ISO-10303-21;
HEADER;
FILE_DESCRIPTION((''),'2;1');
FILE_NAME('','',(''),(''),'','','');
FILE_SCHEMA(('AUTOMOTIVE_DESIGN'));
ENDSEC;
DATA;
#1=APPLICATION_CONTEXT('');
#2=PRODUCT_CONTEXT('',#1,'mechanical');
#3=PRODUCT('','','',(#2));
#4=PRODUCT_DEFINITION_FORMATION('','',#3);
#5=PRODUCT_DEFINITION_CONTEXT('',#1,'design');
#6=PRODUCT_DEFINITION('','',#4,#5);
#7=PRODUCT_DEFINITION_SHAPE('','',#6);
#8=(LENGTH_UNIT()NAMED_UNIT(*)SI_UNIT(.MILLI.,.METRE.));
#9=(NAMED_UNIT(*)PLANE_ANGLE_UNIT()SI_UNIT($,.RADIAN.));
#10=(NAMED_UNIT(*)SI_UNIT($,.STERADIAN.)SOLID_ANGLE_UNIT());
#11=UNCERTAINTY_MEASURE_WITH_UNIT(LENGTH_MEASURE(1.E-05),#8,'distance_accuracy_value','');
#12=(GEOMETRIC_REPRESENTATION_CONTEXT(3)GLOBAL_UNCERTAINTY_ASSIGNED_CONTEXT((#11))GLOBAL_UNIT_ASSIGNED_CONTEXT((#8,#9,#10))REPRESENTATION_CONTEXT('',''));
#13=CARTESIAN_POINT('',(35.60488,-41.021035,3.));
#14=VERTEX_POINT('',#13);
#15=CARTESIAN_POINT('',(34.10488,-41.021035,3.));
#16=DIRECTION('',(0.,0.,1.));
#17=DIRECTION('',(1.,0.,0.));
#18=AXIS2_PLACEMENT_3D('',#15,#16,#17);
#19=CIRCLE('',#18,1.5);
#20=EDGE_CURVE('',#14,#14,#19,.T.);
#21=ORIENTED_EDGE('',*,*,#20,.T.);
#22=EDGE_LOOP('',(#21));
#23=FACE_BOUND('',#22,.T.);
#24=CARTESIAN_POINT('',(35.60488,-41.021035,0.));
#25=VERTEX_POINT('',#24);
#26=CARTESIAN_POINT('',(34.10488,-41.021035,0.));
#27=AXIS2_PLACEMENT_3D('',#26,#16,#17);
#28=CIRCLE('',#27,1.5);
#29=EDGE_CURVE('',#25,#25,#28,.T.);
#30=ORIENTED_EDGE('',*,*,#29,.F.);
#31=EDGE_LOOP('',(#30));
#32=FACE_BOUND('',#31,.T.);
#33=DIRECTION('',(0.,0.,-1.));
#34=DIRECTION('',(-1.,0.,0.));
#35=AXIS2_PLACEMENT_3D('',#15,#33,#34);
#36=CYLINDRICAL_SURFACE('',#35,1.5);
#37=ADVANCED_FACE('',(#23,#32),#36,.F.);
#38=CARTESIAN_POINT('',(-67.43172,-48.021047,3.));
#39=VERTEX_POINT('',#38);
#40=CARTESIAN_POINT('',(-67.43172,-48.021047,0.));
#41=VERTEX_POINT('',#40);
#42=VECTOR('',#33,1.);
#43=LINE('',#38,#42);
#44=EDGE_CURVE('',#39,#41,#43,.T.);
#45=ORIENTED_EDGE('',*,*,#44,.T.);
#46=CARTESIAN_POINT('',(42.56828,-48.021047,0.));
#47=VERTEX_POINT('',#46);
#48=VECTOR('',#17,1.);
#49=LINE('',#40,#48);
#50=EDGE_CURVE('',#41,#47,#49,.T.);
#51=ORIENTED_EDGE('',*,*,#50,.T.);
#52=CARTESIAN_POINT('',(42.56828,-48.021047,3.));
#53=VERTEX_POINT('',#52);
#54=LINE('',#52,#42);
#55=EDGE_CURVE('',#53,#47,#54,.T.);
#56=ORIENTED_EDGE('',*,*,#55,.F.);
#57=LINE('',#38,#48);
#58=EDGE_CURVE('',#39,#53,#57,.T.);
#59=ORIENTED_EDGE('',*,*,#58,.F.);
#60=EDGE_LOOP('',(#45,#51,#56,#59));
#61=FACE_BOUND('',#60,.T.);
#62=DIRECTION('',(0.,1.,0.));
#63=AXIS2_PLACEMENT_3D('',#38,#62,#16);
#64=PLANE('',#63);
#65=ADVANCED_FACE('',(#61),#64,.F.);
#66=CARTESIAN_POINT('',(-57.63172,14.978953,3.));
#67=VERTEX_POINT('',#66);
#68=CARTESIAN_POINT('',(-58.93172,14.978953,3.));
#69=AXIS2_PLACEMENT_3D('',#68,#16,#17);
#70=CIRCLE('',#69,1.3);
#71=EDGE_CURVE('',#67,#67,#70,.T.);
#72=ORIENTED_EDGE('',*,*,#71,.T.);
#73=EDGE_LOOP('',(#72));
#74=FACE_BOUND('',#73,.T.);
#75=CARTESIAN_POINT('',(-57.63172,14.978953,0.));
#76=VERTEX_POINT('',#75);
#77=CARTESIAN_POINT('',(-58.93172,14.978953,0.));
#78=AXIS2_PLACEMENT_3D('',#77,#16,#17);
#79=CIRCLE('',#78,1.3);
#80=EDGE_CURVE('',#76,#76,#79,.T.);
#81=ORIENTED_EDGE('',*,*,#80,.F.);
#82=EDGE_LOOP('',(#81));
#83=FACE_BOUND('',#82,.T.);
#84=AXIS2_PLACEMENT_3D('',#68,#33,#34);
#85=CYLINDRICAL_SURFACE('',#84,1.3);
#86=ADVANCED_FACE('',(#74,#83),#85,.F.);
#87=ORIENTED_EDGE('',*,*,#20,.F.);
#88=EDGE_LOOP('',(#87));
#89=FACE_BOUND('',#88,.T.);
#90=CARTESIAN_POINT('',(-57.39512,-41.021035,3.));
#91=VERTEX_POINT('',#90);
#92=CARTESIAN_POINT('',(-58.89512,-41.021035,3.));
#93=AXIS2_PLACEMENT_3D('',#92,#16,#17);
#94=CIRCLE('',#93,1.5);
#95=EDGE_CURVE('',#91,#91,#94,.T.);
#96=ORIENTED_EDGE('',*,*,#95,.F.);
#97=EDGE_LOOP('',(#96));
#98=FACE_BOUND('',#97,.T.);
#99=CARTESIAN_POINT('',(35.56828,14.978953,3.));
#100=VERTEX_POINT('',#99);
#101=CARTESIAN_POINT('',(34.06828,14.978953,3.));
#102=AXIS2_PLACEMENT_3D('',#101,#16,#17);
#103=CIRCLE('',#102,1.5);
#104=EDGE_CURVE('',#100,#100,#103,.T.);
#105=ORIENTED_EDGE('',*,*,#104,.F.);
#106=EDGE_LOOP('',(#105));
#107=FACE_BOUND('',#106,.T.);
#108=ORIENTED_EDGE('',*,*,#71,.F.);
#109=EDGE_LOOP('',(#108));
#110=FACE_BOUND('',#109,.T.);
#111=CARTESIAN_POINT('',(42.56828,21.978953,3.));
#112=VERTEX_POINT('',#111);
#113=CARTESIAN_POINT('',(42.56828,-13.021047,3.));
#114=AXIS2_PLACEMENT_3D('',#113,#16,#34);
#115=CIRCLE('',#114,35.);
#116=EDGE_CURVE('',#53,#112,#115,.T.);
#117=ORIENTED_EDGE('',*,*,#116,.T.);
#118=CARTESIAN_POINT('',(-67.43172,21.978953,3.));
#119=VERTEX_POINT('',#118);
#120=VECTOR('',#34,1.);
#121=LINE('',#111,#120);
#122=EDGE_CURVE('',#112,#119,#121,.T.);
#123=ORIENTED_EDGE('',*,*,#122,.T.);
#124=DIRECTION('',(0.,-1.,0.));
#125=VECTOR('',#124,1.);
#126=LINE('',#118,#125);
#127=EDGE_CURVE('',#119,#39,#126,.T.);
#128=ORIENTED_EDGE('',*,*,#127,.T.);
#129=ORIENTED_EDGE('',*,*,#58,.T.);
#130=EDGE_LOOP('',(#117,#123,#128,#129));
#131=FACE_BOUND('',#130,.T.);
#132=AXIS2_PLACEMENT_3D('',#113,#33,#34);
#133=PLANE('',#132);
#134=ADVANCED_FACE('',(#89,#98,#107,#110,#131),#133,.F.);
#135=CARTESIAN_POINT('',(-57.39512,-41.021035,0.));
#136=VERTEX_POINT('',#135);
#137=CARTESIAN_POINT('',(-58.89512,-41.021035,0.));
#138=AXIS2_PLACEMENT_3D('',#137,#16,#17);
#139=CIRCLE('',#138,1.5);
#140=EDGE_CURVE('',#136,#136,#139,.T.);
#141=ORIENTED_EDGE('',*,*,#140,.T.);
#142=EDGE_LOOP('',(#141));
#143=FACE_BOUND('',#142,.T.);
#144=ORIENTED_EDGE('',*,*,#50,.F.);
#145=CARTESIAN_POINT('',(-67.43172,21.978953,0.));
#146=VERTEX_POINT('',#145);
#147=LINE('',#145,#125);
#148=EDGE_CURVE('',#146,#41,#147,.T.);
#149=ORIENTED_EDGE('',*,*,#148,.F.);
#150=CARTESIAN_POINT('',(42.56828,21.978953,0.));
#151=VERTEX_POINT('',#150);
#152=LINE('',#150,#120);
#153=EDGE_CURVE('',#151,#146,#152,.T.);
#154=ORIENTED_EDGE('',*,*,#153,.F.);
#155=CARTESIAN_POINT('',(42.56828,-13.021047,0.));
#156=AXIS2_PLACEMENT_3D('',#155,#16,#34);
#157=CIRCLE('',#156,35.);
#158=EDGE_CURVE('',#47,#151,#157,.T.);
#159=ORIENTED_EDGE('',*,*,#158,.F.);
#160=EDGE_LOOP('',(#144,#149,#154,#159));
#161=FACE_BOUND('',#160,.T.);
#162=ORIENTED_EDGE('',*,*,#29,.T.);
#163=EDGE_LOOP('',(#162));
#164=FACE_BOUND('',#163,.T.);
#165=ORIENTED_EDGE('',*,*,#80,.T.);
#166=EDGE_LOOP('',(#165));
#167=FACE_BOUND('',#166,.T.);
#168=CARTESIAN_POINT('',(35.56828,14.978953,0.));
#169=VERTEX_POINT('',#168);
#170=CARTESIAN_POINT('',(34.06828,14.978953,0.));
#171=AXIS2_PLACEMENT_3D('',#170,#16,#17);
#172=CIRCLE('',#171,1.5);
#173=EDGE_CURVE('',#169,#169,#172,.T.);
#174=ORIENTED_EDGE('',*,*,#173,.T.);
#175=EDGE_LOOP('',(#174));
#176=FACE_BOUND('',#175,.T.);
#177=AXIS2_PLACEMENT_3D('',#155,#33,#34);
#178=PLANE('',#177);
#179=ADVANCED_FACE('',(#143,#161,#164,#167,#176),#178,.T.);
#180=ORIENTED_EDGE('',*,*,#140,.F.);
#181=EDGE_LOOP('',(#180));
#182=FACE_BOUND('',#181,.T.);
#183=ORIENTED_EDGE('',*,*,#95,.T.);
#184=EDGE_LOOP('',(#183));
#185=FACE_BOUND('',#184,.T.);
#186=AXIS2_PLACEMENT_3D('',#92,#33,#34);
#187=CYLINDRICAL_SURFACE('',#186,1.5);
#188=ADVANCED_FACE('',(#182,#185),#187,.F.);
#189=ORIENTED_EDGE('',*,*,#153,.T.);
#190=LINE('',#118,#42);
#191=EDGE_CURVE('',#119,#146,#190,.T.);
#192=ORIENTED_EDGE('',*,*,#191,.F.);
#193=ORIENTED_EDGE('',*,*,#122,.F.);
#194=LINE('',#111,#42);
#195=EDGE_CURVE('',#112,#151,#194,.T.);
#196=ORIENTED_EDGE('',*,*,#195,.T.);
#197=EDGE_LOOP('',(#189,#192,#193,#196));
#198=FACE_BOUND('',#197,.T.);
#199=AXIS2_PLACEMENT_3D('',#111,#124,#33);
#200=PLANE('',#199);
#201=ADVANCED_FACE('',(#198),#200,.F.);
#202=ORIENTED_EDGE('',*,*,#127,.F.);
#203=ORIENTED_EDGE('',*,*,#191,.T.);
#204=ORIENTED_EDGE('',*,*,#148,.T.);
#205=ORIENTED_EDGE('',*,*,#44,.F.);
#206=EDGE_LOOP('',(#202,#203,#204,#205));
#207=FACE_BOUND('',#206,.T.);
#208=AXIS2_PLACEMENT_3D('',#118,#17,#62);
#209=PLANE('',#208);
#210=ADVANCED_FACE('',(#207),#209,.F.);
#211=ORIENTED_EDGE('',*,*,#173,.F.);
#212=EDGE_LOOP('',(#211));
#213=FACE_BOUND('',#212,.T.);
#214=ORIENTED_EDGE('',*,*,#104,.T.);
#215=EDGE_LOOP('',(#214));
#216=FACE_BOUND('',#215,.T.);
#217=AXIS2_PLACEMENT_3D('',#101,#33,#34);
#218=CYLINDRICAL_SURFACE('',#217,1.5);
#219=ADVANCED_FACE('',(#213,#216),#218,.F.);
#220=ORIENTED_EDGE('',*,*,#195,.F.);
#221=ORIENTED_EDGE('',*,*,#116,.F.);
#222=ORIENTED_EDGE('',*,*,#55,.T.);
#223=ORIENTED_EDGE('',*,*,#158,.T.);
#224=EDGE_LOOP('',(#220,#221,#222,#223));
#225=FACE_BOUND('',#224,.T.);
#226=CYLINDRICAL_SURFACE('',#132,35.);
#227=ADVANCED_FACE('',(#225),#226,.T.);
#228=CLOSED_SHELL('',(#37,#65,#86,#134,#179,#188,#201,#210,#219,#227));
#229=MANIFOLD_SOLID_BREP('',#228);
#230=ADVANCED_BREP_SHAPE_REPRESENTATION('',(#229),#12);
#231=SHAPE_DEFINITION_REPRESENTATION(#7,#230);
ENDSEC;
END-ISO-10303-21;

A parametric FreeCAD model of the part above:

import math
import FreeCAD as App
import Part
import Sketcher
from FreeCAD import Vector
Q = App.Units.Quantity

doc = App.newDocument("Part")
body = doc.addObject("PartDesign::Body", "Body")

# Sketch on XY plane
sketch1 = body.newObject("Sketcher::SketchObject", "Sketch")
sketch1.AttachmentSupport = (doc.getObject("XY_Plane"), [""])
sketch1.MapMode = "FlatFace"
sketch1.addGeometry([
    Part.LineSegment(Vector(-67.4, 22, 0), Vector(-67.4, -48, 0)),  # 0
    Part.LineSegment(Vector(-67.4, -48, 0), Vector(42.6, -48, 0)),  # 1
    Part.ArcOfCircle(Part.Circle(Vector(42.6, -13, 0), Vector(0, 0, 1), 35), math.radians(-90), math.radians(90)),  # 2
    Part.LineSegment(Vector(42.6, 22, 0), Vector(-67.4, 22, 0)),  # 3
    Part.Circle(Vector(-58.9, -41, 0), Vector(0, 0, 1), 1.5),  # 4
    Part.Circle(Vector(34.1, -41, 0), Vector(0, 0, 1), 1.5),  # 5
    Part.Circle(Vector(-58.9, 15, 0), Vector(0, 0, 1), 1.3),  # 6
    Part.Circle(Vector(34.1, 15, 0), Vector(0, 0, 1), 1.5),  # 7
], False)
sketch1.addConstraint([
    Sketcher.Constraint("Coincident", 0, 2, 1, 1),
    Sketcher.Constraint("Tangent", 1, 2, 2, 1),
    Sketcher.Constraint("Tangent", 2, 2, 3, 1),
    Sketcher.Constraint("Coincident", 3, 2, 0, 1),
    Sketcher.Constraint("Vertical", 0),
    Sketcher.Constraint("Horizontal", 1),
    Sketcher.Constraint("Horizontal", 3),
    Sketcher.Constraint("Equal", 4, 5),
    Sketcher.Constraint("Equal", 5, 7),
    Sketcher.Constraint("Horizontal", 4, 3, 5, 3),
    Sketcher.Constraint("Horizontal", 6, 3, 7, 3),
    Sketcher.Constraint("Diameter", 4, Q("3 mm")),
    Sketcher.Constraint("Radius", 2, Q("35 mm")),
    Sketcher.Constraint("Diameter", 6, Q("2.6 mm")),
    Sketcher.Constraint("DistanceX", 1, 1, 1, 2, Q("110 mm")),
    Sketcher.Constraint("DistanceX", 4, 3, 5, 3, Q("93 mm")),
    Sketcher.Constraint("DistanceY", 2, 3, 6, 3, Q("28 mm")),
    Sketcher.Constraint("DistanceX", 6, 3, 7, 3, Q("93 mm")),
    Sketcher.Constraint("DistanceX", 6, 3, 2, 3, Q("101.5 mm")),
    Sketcher.Constraint("DistanceX", 4, 3, 2, 3, Q("101.4634 mm")),
    Sketcher.Constraint("DistanceX", -1, 1, 2, 3, Q("42.56828 mm")),
    Sketcher.Constraint("DistanceY", 4, 3, 2, 3, Q("27.999988 mm")),
    Sketcher.Constraint("DistanceY", 2, 3, -1, 1, Q("13.021047 mm")),
])
pad1 = body.newObject("PartDesign::Pad", "Pad")
pad1.Profile = sketch1
pad1.Length = 3

doc.recompute()
